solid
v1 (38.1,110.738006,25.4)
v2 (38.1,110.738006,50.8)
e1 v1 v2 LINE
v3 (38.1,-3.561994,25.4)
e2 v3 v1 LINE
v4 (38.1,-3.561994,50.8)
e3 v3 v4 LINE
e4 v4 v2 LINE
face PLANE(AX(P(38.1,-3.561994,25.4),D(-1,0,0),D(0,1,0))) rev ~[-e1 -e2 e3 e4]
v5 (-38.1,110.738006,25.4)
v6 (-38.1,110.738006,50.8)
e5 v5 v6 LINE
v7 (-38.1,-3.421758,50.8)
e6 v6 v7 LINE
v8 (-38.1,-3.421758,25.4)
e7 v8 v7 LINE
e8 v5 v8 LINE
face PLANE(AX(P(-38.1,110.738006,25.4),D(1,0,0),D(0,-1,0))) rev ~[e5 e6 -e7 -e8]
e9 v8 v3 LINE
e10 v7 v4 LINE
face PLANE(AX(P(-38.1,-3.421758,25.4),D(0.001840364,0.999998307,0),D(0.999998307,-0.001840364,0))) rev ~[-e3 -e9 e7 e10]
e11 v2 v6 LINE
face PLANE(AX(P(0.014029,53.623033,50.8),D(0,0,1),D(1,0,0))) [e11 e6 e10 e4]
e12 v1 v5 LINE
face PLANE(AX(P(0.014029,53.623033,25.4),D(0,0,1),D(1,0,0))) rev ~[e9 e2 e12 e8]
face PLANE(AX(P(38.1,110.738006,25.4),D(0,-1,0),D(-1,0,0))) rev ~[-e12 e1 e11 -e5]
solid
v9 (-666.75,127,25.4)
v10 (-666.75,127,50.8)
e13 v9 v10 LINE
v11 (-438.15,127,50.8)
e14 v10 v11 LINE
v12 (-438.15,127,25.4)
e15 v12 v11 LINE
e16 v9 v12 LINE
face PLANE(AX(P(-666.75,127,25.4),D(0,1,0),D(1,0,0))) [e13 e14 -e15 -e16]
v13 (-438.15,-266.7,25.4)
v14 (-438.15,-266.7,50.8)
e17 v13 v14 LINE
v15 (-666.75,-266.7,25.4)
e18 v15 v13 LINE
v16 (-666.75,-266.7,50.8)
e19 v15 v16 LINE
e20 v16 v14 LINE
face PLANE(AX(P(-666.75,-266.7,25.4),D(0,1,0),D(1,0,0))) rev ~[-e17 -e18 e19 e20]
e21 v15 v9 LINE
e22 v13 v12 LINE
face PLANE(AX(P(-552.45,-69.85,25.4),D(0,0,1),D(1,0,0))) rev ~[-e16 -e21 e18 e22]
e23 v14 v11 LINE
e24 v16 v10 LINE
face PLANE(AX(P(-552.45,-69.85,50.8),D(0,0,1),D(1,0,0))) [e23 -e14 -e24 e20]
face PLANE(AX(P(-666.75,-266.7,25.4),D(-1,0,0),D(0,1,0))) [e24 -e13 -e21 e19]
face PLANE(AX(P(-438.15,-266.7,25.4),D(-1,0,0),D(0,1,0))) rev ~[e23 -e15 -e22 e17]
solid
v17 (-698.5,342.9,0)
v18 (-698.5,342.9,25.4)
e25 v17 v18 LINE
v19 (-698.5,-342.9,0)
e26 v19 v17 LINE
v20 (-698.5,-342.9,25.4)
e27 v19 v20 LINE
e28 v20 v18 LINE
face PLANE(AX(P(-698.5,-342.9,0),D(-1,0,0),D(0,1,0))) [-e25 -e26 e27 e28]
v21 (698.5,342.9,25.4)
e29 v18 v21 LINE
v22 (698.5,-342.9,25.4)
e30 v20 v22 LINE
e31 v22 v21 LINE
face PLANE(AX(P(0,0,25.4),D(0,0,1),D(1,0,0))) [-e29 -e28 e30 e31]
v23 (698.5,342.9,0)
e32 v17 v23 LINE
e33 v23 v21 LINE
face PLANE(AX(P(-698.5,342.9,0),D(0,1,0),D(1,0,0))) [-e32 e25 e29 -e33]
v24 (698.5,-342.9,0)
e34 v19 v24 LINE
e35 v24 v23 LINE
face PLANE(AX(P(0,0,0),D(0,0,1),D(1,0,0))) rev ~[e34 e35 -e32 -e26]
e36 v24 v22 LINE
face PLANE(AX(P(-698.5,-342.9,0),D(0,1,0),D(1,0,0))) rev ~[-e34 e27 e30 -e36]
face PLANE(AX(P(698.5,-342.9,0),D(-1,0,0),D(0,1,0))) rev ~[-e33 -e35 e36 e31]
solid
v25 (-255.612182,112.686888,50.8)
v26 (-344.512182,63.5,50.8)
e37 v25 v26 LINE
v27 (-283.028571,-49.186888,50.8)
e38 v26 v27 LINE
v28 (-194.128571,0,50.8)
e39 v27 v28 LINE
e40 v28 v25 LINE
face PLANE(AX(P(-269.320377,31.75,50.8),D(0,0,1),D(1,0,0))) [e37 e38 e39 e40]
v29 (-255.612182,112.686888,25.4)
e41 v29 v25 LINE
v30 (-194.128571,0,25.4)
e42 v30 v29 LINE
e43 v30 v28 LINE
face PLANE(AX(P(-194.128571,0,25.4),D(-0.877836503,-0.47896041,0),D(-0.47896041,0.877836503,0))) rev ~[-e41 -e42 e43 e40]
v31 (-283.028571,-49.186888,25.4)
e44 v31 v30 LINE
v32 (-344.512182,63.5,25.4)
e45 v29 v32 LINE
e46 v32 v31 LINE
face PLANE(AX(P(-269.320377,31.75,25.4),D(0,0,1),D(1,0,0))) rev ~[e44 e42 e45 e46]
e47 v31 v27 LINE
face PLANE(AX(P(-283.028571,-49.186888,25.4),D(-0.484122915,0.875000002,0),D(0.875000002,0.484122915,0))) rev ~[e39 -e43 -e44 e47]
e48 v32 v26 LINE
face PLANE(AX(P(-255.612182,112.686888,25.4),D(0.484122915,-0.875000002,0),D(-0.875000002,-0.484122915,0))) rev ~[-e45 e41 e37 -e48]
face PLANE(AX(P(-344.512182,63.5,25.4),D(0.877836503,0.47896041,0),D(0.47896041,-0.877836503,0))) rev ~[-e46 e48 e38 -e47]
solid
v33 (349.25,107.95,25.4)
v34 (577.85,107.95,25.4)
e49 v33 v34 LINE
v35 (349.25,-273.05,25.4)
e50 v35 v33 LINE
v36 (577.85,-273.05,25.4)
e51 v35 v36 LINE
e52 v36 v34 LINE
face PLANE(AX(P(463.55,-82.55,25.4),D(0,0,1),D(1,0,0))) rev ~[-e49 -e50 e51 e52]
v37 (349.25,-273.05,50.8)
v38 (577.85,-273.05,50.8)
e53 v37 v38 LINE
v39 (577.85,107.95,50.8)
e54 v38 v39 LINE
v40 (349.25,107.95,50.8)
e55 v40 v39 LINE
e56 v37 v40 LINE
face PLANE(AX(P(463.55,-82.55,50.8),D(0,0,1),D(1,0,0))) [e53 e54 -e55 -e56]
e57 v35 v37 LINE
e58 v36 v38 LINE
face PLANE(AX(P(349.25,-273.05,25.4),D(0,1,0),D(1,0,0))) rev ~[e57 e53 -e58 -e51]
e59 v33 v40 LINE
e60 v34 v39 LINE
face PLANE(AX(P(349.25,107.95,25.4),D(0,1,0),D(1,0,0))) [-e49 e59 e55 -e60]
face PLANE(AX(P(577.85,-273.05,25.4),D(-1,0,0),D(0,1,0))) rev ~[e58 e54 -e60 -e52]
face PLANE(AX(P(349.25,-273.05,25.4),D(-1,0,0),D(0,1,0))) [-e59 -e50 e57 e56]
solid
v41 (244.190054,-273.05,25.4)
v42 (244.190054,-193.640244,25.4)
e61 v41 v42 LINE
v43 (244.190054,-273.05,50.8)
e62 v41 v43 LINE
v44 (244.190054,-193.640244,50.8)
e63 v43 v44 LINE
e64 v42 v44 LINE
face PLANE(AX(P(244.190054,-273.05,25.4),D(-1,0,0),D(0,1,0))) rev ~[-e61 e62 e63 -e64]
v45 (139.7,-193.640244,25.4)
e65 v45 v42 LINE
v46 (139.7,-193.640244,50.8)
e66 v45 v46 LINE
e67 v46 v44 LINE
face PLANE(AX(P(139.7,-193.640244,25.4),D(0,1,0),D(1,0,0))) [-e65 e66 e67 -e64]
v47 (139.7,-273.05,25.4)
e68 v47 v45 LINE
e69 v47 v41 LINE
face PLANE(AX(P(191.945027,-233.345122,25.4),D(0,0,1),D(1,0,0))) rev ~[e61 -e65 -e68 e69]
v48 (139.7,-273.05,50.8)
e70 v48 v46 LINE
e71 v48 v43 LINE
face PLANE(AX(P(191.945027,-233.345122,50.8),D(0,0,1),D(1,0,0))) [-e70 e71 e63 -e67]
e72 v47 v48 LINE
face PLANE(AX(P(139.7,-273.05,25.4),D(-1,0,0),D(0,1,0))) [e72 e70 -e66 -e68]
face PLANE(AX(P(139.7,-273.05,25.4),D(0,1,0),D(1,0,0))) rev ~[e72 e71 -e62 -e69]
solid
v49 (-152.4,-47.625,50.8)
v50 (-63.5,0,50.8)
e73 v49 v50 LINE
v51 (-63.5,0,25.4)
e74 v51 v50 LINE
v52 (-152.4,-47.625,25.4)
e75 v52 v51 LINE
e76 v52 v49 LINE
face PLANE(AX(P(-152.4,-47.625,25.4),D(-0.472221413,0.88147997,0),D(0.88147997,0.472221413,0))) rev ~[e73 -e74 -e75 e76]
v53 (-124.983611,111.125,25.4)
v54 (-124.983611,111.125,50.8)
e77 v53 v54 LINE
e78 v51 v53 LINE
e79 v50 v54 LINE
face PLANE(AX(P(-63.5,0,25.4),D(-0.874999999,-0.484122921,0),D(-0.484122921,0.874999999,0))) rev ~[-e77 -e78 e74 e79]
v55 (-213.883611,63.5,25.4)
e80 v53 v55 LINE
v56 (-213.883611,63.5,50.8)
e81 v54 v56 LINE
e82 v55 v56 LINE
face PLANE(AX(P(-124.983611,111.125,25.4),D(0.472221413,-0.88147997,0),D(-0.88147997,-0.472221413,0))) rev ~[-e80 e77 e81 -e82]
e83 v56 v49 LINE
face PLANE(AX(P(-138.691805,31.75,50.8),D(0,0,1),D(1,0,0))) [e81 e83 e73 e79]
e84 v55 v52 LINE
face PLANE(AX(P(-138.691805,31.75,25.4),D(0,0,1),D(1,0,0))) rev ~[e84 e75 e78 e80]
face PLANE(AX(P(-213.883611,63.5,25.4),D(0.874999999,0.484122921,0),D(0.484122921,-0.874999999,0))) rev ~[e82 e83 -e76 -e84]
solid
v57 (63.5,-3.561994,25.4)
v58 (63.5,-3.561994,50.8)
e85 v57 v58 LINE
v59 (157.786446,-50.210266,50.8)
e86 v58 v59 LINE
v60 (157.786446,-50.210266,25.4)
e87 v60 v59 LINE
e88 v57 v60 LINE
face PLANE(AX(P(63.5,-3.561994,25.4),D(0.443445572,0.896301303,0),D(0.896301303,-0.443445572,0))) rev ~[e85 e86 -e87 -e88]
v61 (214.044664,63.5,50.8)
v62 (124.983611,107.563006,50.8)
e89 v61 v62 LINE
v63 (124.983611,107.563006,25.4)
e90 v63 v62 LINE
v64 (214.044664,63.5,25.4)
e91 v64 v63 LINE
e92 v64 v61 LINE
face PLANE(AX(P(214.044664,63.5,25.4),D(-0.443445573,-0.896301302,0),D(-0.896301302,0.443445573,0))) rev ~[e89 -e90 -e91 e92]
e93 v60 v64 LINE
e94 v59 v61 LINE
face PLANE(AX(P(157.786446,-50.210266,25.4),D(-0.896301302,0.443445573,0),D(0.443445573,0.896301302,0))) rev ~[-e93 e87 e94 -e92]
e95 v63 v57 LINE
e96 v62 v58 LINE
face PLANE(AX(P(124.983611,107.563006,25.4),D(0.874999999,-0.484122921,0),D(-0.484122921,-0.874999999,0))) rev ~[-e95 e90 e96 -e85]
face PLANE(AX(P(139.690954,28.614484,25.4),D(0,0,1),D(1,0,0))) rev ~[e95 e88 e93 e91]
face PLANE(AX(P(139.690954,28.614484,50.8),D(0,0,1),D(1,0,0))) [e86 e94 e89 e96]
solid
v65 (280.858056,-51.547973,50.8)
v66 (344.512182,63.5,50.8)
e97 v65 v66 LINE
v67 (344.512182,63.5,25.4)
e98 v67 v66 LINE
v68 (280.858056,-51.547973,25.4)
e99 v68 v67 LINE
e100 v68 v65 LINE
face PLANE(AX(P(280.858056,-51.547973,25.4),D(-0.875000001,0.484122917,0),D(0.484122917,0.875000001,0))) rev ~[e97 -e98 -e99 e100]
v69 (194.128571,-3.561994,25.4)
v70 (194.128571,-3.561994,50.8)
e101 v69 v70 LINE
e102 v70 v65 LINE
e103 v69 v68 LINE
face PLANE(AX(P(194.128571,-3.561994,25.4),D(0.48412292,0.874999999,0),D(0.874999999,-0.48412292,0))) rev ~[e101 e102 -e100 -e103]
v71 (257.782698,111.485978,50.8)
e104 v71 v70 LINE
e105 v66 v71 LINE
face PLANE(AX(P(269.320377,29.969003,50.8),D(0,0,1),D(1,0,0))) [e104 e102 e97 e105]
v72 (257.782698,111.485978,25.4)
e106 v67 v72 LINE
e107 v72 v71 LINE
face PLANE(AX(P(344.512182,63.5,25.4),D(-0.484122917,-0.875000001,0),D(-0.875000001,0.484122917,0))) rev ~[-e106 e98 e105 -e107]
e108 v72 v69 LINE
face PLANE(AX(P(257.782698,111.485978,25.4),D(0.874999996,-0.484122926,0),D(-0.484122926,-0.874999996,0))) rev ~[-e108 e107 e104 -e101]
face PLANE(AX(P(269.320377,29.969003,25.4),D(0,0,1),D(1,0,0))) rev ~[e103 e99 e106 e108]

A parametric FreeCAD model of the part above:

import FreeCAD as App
import Part
import Sketcher

V = App.Vector
Q = App.Units.Quantity


def add_polygon(sketch, points):
    """Adds a closed chain of lines whose ends are joined by coincident constraints."""
    first, n = sketch.GeometryCount, len(points)
    for a, b in zip(points, points[1:] + points[:1]):
        sketch.addGeometry(Part.LineSegment(App.Vector(*a, 0), App.Vector(*b, 0)), False)
    for i in range(n):
        sketch.addConstraint(Sketcher.Constraint("Coincident", first + i, 2, first + (i + 1) % n, 1))

doc = App.newDocument("Part")
body = doc.addObject("PartDesign::Body", "Body")

# Sketch on XY plane
sketch1 = doc.addObject("Sketcher::SketchObject", "Sketch")
body.addObject(sketch1)
sketch1.AttachmentSupport = (doc.XY_Plane, [""])
sketch1.MapMode = "FlatFace"
add_polygon(sketch1, [(-698, 343), (-698, -343), (698, -343), (698, 343)])  # lines 0-3
sketch1.addConstraint(Sketcher.Constraint("Vertical", 0))
sketch1.addConstraint(Sketcher.Constraint("Horizontal", 1))
sketch1.addConstraint(Sketcher.Constraint("Vertical", 2))
sketch1.addConstraint(Sketcher.Constraint("Horizontal", 3))
sketch1.addConstraint(Sketcher.Constraint("Symmetric", 0, 2, 2, 2, -1, 1))
sketch1.addConstraint(Sketcher.Constraint("DistanceX", 1, 1, 1, 2, Q("55 in")))
sketch1.addConstraint(Sketcher.Constraint("DistanceY", 0, 2, 0, 1, Q("27 in")))
pad1 = doc.addObject("PartDesign::Pad", "Pad")
body.addObject(pad1)
pad1.Profile = sketch1
pad1.Length = Q("1 in")
body2 = doc.addObject("PartDesign::Body", "Body001")
body2.AllowCompound = True

# Sketch on XY plane
sketch2 = doc.addObject("Sketcher::SketchObject", "Sketch001")
body2.addObject(sketch2)
sketch2.AttachmentSupport = (doc.getObject("XY_Plane001"), [""])
sketch2.MapMode = "FlatFace"
sketch2.AttachmentOffset = App.Placement(V(0, 0, 1 * 25.4), App.Rotation())
add_polygon(sketch2, [(-38, 111), (-38, -3), (38, -4), (38, 111)])  # lines 0-3
add_polygon(sketch2, [(-667, 127), (-667, -267), (-438, -267), (-438, 127)])  # lines 4-7
add_polygon(sketch2, [(349, 108), (349, -273), (578, -273), (578, 108)])  # lines 8-11
add_polygon(sketch2, [(140, -194), (140, -273), (244, -273), (244, -194)])  # lines 12-15
add_polygon(sketch2, [(125, 108), (64, -4), (158, -50), (214, 64)])  # lines 16-19
add_polygon(sketch2, [(258, 111), (194, -4), (281, -52), (345, 64)])  # lines 20-23
add_polygon(sketch2, [(-64, 0), (-125, 111), (-214, 64), (-152, -48)])  # lines 24-27
add_polygon(sketch2, [(-194, 0), (-256, 113), (-345, 64), (-283, -49)])  # lines 28-31
sketch2.addConstraint(Sketcher.Constraint("Vertical", 0))
sketch2.addConstraint(Sketcher.Constraint("Vertical", 2))
sketch2.addConstraint(Sketcher.Constraint("Horizontal", 3))
sketch2.addConstraint(Sketcher.Constraint("Vertical", 4))
sketch2.addConstraint(Sketcher.Constraint("Horizontal", 5))
sketch2.addConstraint(Sketcher.Constraint("Vertical", 6))
sketch2.addConstraint(Sketcher.Constraint("Horizontal", 7))
sketch2.addConstraint(Sketcher.Constraint("Vertical", 8))
sketch2.addConstraint(Sketcher.Constraint("Horizontal", 9))
sketch2.addConstraint(Sketcher.Constraint("Vertical", 10))
sketch2.addConstraint(Sketcher.Constraint("Horizontal", 11))
sketch2.addConstraint(Sketcher.Constraint("Vertical", 12))
sketch2.addConstraint(Sketcher.Constraint("Horizontal", 13))
sketch2.addConstraint(Sketcher.Constraint("Vertical", 14))
sketch2.addConstraint(Sketcher.Constraint("Horizontal", 15))
sketch2.addConstraint(Sketcher.Constraint("Symmetric", 22, 2, 29, 2, -2))
sketch2.addConstraint(Sketcher.Constraint("PointOnObject", 27, 2, -1))
sketch2.addConstraint(Sketcher.Constraint("PointOnObject", 31, 2, -1))
sketch2.addConstraint(Sketcher.Constraint("Perpendicular", 17, 18))
sketch2.addConstraint(Sketcher.Constraint("Perpendicular", 18, 19))
sketch2.addConstraint(Sketcher.Constraint("Parallel", 16, 20))
sketch2.addConstraint(Sketcher.Constraint("Perpendicular", 20, 21))
sketch2.addConstraint(Sketcher.Constraint("Perpendicular", 21, 22))
sketch2.addConstraint(Sketcher.Constraint("Perpendicular", 22, 23))
sketch2.addConstraint(Sketcher.Constraint("Parallel", 24, 26))
sketch2.addConstraint(Sketcher.Constraint("Parallel", 25, 27))
sketch2.addConstraint(Sketcher.Constraint("Perpendicular", 26, 29))
sketch2.addConstraint(Sketcher.Constraint("Parallel", 28, 30))
sketch2.addConstraint(Sketcher.Constraint("Parallel", 29, 31))
sketch2.addConstraint(Sketcher.Constraint("Horizontal", 9, 2, 12, 2))
sketch2.addConstraint(Sketcher.Constraint("Horizontal", 1, 2, 16, 2))
sketch2.addConstraint(Sketcher.Constraint("Horizontal", 16, 2, 20, 2))
sketch2.addConstraint(Sketcher.Constraint("Horizontal", 18, 2, 22, 2))
sketch2.addConstraint(Sketcher.Constraint("Horizontal", 22, 2, 25, 2))
sketch2.addConstraint(Sketcher.Constraint("Equal", 7, 9))
sketch2.addConstraint(Sketcher.Constraint("Equal", 16, 24))
sketch2.addConstraint(Sketcher.Constraint("DistanceX", 3, 2, 3, 1, Q("3 in")))
sketch2.addConstraint(Sketcher.Constraint("DistanceX", 5, 1, 5, 2, Q("9 in")))
sketch2.addConstraint(Sketcher.Constraint("DistanceY", 8, 2, 8, 1, Q("15 in")))
sketch2.addConstraint(Sketcher.Constraint("Distance", 16, Q("5 in")))
sketch2.addConstraint(Sketcher.Constraint("Distance", 29, Q("4 in")))
sketch2.addConstraint(Sketcher.Constraint("DistanceY", 2, 1, 2, 2, Q("4.5 in")))
sketch2.addConstraint(Sketcher.Constraint("DistanceY", 4, 2, 4, 1, Q("15.5 in")))
sketch2.addConstraint(Sketcher.Constraint("DistanceY", -1, 1, 6, 2, Q("5 in")))
sketch2.addConstraint(Sketcher.Constraint("DistanceX", 26, 2, -1, 1, Q("6 in")))
sketch2.addConstraint(Sketcher.Constraint("DistanceX", 5, 2, 8, 2, Q("31 in")))
sketch2.addConstraint(Sketcher.Constraint("DistanceX", 1, 2, 12, 2, Q("4 in")))
sketch2.addConstraint(Sketcher.Constraint("DistanceX", 1, 2, 16, 2, Q("1 in")))
sketch2.addConstraint(Sketcher.Constraint("DistanceX", 27, 2, 0, 2, Q("1 in")))
sketch2.addConstraint(Sketcher.Constraint("DistanceX", 0, 2, -1, 1, Q("1.5 in")))
sketch2.addConstraint(Sketcher.Constraint("DistanceY", -1, 1, 18, 2, Q("2.5 in")))
sketch2.addConstraint(Sketcher.Constraint("DistanceX", 29, 2, 28, 2, Q("3.5 in")))
sketch2.addConstraint(Sketcher.Constraint("DistanceX", 4, 2, -1, 1, Q("26.25 in")))
sketch2.addConstraint(Sketcher.Constraint("DistanceY", 8, 2, -1, 1, Q("10.75 in")))
sketch2.addConstraint(Sketcher.Constraint("DistanceY", 19, 2, 2, 2, Q("0.125 in")))
sketch2.addConstraint(Sketcher.Constraint("DistanceX", -1, 1, 23, 2, Q("257.782698 mm")))
sketch2.addConstraint(Sketcher.Constraint("DistanceX", 14, 2, 21, 2, Q("36.668002 mm")))
sketch2.addConstraint(Sketcher.Constraint("Distance", 21, Q("99.119412 mm")))
sketch2.addConstraint(Sketcher.Constraint("Distance", 28, Q("128.368879 mm")))
sketch2.addConstraint(Sketcher.Constraint("DistanceX", 13, 1, 13, 2, Q("104.490054 mm")))
sketch2.addConstraint(Sketcher.Constraint("DistanceY", 0, 2, 0, 1, Q("114.159764 mm")))
sketch2.addConstraint(Sketcher.Constraint("DistanceY", 12, 2, 12, 1, Q("79.409756 mm")))
sketch2.addConstraint(Sketcher.Constraint("DistanceY", 15, 2, 17, 2, Q("143.429978 mm")))
pad2 = doc.addObject("PartDesign::Pad", "Pad001")
body2.addObject(pad2)
pad2.Profile = sketch2
pad2.Length = Q("1 in")

doc.recompute()
